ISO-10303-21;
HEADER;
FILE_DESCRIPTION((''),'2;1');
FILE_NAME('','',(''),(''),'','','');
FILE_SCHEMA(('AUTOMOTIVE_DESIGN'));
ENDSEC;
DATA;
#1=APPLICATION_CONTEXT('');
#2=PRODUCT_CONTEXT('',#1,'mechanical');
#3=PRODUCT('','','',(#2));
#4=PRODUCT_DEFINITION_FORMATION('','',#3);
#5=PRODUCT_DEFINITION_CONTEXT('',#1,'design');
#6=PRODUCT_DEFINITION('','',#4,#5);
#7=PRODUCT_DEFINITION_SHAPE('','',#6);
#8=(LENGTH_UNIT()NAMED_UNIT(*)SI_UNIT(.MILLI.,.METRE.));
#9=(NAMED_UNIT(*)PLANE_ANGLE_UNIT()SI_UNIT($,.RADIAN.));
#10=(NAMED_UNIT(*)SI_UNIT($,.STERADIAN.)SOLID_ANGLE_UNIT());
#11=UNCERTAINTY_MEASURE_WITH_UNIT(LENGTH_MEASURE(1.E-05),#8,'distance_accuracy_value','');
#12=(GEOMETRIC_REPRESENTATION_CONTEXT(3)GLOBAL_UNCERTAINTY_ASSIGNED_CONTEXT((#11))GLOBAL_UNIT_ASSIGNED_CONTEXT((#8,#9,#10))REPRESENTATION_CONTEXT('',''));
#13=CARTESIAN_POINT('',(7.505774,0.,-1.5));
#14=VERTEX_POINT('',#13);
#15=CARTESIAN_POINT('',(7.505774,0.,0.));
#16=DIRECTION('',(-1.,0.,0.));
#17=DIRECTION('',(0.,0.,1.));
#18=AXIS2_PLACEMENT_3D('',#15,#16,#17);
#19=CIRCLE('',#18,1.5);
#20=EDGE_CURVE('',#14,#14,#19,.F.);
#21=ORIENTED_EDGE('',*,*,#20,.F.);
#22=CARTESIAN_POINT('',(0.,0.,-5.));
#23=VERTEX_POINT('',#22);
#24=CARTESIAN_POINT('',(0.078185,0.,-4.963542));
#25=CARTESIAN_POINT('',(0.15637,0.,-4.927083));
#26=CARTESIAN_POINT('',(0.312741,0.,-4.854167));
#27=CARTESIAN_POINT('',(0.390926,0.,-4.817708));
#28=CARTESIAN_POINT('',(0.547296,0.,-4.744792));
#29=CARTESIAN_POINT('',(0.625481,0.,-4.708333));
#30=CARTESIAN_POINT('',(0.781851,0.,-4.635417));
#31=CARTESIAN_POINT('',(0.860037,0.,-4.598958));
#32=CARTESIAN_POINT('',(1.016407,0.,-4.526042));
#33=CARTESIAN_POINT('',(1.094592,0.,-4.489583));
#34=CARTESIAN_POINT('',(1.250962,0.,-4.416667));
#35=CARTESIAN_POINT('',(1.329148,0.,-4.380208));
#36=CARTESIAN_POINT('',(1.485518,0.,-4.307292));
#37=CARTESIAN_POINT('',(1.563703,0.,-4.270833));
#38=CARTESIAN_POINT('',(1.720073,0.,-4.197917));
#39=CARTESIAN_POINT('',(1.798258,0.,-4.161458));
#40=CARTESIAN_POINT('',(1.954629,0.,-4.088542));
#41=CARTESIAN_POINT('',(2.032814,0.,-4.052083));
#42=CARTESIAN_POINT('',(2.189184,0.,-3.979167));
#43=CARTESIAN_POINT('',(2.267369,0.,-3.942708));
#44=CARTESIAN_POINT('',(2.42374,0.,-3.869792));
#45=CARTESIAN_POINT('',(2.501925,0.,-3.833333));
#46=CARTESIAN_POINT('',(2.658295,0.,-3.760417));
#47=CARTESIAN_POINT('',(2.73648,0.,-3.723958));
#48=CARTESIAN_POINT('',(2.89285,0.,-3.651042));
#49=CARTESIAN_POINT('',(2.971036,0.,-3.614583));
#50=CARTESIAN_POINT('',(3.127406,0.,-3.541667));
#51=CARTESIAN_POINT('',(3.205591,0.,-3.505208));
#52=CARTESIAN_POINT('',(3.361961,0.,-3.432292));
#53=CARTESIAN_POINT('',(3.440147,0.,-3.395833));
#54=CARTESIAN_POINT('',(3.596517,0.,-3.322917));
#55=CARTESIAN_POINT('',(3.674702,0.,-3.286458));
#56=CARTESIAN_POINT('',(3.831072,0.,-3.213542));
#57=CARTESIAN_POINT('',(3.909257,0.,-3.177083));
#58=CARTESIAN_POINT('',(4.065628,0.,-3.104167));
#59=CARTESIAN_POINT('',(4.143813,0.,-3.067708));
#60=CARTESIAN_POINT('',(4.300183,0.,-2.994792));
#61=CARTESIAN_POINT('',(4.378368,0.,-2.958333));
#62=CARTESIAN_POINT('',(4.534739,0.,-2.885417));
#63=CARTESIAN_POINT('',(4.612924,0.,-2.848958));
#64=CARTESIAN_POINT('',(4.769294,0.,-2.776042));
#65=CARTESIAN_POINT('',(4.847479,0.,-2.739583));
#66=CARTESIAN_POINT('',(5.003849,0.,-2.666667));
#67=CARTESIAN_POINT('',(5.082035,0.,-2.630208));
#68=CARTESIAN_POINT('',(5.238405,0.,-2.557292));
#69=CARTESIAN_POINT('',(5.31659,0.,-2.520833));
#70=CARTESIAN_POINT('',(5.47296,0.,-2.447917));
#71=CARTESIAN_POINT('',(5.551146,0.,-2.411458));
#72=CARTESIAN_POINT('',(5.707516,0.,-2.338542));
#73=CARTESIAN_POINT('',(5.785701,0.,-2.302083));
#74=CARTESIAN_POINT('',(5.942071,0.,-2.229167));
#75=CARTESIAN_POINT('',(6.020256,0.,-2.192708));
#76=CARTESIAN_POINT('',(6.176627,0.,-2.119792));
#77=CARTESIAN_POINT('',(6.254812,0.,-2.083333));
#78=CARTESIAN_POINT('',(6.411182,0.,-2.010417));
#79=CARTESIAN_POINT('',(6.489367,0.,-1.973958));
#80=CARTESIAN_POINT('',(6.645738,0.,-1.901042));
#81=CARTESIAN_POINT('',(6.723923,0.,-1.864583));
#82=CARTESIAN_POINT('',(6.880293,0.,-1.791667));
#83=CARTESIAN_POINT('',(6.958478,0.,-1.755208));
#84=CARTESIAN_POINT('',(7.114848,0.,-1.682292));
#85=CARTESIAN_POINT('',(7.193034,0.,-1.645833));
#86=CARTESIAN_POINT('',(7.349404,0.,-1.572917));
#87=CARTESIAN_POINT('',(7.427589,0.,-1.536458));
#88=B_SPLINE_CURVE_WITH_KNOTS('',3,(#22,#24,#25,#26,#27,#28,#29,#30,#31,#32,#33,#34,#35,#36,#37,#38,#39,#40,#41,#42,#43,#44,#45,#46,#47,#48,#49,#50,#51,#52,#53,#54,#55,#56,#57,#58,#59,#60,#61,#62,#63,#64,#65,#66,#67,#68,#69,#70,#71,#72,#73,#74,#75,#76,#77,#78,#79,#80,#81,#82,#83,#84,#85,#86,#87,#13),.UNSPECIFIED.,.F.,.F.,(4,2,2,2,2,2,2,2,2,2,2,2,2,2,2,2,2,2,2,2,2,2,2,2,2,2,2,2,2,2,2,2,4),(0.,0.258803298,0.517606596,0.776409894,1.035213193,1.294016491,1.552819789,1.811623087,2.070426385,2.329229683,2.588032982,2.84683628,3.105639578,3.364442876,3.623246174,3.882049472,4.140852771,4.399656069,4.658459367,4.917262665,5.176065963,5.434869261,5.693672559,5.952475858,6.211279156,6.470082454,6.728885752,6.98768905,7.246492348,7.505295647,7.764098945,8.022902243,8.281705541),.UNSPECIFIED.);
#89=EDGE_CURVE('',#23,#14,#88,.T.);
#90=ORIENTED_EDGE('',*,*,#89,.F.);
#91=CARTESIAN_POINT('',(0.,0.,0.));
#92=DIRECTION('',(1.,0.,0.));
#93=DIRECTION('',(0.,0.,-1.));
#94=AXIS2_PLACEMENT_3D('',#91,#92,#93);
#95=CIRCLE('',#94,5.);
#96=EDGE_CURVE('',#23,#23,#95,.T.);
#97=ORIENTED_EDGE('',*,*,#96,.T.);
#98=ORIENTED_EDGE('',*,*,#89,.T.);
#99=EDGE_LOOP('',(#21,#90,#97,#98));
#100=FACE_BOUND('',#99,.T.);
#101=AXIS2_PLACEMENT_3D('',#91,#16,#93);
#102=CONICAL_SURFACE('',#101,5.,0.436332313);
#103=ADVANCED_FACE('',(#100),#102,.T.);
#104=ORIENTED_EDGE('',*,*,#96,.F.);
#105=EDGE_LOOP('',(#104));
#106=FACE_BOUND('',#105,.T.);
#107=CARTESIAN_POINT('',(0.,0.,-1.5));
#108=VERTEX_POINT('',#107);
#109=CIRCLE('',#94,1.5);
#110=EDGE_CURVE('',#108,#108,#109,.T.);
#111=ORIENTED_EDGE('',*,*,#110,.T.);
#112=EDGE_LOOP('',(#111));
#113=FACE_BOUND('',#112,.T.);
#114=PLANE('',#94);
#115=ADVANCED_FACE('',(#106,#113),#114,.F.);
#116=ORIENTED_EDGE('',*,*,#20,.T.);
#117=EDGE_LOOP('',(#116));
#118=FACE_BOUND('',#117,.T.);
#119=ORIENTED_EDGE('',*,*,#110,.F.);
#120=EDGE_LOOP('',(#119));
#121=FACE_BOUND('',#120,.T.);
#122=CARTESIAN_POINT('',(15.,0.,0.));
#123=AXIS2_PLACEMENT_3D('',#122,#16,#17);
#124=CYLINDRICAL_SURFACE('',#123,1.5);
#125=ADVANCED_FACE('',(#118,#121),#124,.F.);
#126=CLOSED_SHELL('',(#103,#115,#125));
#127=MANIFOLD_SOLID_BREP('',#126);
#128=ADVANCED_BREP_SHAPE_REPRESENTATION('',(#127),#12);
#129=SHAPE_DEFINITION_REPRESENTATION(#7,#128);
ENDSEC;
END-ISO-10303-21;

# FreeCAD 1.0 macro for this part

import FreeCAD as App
import Part
import Sketcher
Q = App.Units.Quantity

doc = App.newDocument("Part")
params = doc.addObject("Spreadsheet::Sheet", "Params")
for row, (alias, value) in enumerate([
    ("sketch1_height", "5 mm"),
    ("revolution_angle", "360 deg"),
    ("sketch2_diameter", "3 mm"),
    ("pocket1_length", "15 mm"),
], start=1):
    params.set(f"A{row}", alias)
    params.set(f"B{row}", "=" + value)
    params.setAlias(f"B{row}", alias)

body = doc.addObject("PartDesign::Body", "Body")

# Sketch on XZ plane
sketch1 = body.newObject("Sketcher::SketchObject", "Sketch")
sketch1.AttachmentSupport = (doc.getObject("XZ_Plane"), [""])
sketch1.MapMode = "FlatFace"
sketch1.addGeometry(Part.LineSegment(App.Vector(0, 0, 0), App.Vector(0, 5, 0)), False)
sketch1.addGeometry(Part.LineSegment(App.Vector(0, 5, 0), App.Vector(10.722535, 0, 0)), False)
sketch1.addGeometry(Part.LineSegment(App.Vector(10.722535, 0, 0), App.Vector(0, 0, 0)), False)
sketch1.addConstraint(Sketcher.Constraint("Coincident", 0, 2, 1, 1))
sketch1.addConstraint(Sketcher.Constraint("Coincident", 1, 2, 2, 1))
sketch1.addConstraint(Sketcher.Constraint("Coincident", 2, 2, 0, 1))
sketch1.addConstraint(Sketcher.Constraint("Vertical", 0))
sketch1.addConstraint(Sketcher.Constraint("Horizontal", 2))
sketch1.addConstraint(Sketcher.Constraint("Coincident", 2, 2, -1, 1))
sketch1.addConstraint(Sketcher.Constraint("DistanceY", 0, 1, 0, 2, 5.0))
sketch1.addConstraint(Sketcher.Constraint("Angle", 1, Q("-25 deg")))
sketch1.setExpression("Constraints[6]", "Params.sketch1_height")
revolution = body.newObject("PartDesign::Revolution", "Revolution")
revolution.Profile = sketch1
revolution.ReferenceAxis = (sketch1, ["H_Axis"])
revolution.setExpression("Angle", "Params.revolution_angle")

# Sketch on YZ plane
sketch2 = body.newObject("Sketcher::SketchObject", "Sketch001")
sketch2.AttachmentSupport = (doc.getObject("YZ_Plane"), [""])
sketch2.MapMode = "FlatFace"
sketch2.addGeometry(Part.Circle(App.Vector(0, 0, 0), App.Vector(0, 0, 1), 1.5), False)
sketch2.addConstraint(Sketcher.Constraint("Coincident", 0, 3, -1, 1))
sketch2.addConstraint(Sketcher.Constraint("Diameter", 0, 3.0))
sketch2.setExpression("Constraints[1]", "Params.sketch2_diameter")
pocket1 = body.newObject("PartDesign::Pocket", "Pocket")
pocket1.Profile = sketch2
pocket1.setExpression("Length", "Params.pocket1_length")
pocket1.Reversed = True

doc.recompute()
